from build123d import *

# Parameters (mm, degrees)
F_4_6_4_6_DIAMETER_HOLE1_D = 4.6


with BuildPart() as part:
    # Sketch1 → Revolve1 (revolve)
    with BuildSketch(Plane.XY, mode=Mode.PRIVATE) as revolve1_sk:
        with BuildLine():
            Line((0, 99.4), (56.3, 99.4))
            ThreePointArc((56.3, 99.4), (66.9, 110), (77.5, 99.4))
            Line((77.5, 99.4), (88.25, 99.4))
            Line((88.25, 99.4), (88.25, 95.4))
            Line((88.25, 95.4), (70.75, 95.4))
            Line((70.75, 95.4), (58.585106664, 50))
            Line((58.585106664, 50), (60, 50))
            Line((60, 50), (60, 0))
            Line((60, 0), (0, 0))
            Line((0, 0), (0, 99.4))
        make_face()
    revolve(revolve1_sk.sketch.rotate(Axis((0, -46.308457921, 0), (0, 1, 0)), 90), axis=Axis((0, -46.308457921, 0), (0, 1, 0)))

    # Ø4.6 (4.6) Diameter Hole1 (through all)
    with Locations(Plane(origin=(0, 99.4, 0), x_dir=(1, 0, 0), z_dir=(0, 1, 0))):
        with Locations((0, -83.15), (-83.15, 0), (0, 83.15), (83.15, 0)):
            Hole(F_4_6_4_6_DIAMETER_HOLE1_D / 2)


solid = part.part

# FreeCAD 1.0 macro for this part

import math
import FreeCAD as App
import Part
import Sketcher

V = App.Vector
Q = App.Units.Quantity

doc = App.newDocument("Part")
body = doc.addObject("PartDesign::Body", "Body")

# Sketch on XY plane
sketch1 = body.newObject("Sketcher::SketchObject", "Sketch")
sketch1.AttachmentSupport = (doc.getObject("XY_Plane"), [""])
sketch1.MapMode = "FlatFace"
sketch1.addGeometry(Part.LineSegment(V(56.3, 99.4, 0), V(0, 99.4, 0)), False)
sketch1.addGeometry(Part.LineSegment(V(0, 99.4, 0), V(0, 0, 0)), False)
sketch1.addGeometry(Part.LineSegment(V(0, 0, 0), V(60, 0, 0)), False)
sketch1.addGeometry(Part.LineSegment(V(60, 0, 0), V(60, 50, 0)), False)
sketch1.addGeometry(Part.LineSegment(V(60, 50, 0), V(58.6, 50, 0)), False)
sketch1.addGeometry(Part.LineSegment(V(58.6, 50, 0), V(70.8, 95.4, 0)), False)
sketch1.addGeometry(Part.LineSegment(V(70.8, 95.4, 0), V(88.2, 95.4, 0)), False)
sketch1.addGeometry(Part.LineSegment(V(88.2, 95.4, 0), V(88.2, 99.4, 0)), False)
sketch1.addGeometry(Part.LineSegment(V(88.2, 99.4, 0), V(77.5, 99.4, 0)), False)
sketch1.addGeometry(Part.ArcOfCircle(Part.Circle(V(66.9, 99.4, 0), V(0, 0, 1), 10.6), math.radians(0), math.radians(180)), False)
sketch1.addConstraint(Sketcher.Constraint("Coincident", 0, 2, 1, 1))
sketch1.addConstraint(Sketcher.Constraint("Coincident", 1, 2, 2, 1))
sketch1.addConstraint(Sketcher.Constraint("Coincident", 2, 2, 3, 1))
sketch1.addConstraint(Sketcher.Constraint("Coincident", 3, 2, 4, 1))
sketch1.addConstraint(Sketcher.Constraint("Coincident", 4, 2, 5, 1))
sketch1.addConstraint(Sketcher.Constraint("Coincident", 5, 2, 6, 1))
sketch1.addConstraint(Sketcher.Constraint("Coincident", 6, 2, 7, 1))
sketch1.addConstraint(Sketcher.Constraint("Coincident", 7, 2, 8, 1))
sketch1.addConstraint(Sketcher.Constraint("Coincident", 8, 2, 9, 1))
sketch1.addConstraint(Sketcher.Constraint("Coincident", 9, 2, 0, 1))
sketch1.addConstraint(Sketcher.Constraint("Horizontal", 0))
sketch1.addConstraint(Sketcher.Constraint("Vertical", 1))
sketch1.addConstraint(Sketcher.Constraint("Horizontal", 2))
sketch1.addConstraint(Sketcher.Constraint("Vertical", 3))
sketch1.addConstraint(Sketcher.Constraint("Horizontal", 4))
sketch1.addConstraint(Sketcher.Constraint("Horizontal", 6))
sketch1.addConstraint(Sketcher.Constraint("Vertical", 7))
sketch1.addConstraint(Sketcher.Constraint("Horizontal", 8))
sketch1.addConstraint(Sketcher.Constraint("Coincident", 1, 2, -1, 1))
sketch1.addConstraint(Sketcher.Constraint("Horizontal", 9, 3, 0, 2))
sketch1.addConstraint(Sketcher.Constraint("Horizontal", 0, 2, 7, 2))
sketch1.addConstraint(Sketcher.Constraint("Radius", 9, 10.6))
sketch1.addConstraint(Sketcher.Constraint("DistanceX", 2, 1, 2, 2, 60.0))
sketch1.addConstraint(Sketcher.Constraint("DistanceY", 3, 1, 3, 2, 50.0))
sketch1.addConstraint(Sketcher.Constraint("DistanceY", 7, 1, 7, 2, 4.0))
sketch1.addConstraint(Sketcher.Constraint("Angle", 5, Q("75 deg")))
sketch1.addConstraint(Sketcher.Constraint("DistanceX", 0, 2, 0, 1, 56.3))
sketch1.addConstraint(Sketcher.Constraint("DistanceX", 6, 1, 6, 2, 17.5))
sketch1.addConstraint(Sketcher.Constraint("DistanceY", 1, 2, 1, 1, 99.4))
sketch1.addConstraint(Sketcher.Constraint("DistanceX", 8, 2, 8, 1, 10.75))
revolution = body.newObject("PartDesign::Revolution", "Revolution")
revolution.Profile = sketch1
revolution.ReferenceAxis = (sketch1, ["V_Axis"])
revolution.Angle = 360

# Sketch on XZ plane
sketch2 = body.newObject("Sketcher::SketchObject", "Sketch001")
sketch2.AttachmentSupport = (doc.getObject("XZ_Plane"), [""])
sketch2.MapMode = "FlatFace"
sketch2.AttachmentOffset = App.Placement(V(0, 0, -99.4), App.Rotation())
sketch2.addGeometry(Part.Circle(V(0, 83.2, 0), V(0, 0, 1), 2.3), False)
sketch2.addGeometry(Part.Circle(V(-83.2, 0, 0), V(0, 0, 1), 2.3), False)
sketch2.addGeometry(Part.Circle(V(0, -83.2, 0), V(0, 0, 1), 2.3), False)
sketch2.addGeometry(Part.Circle(V(83.2, 0, 0), V(0, 0, 1), 2.3), False)
sketch2.addConstraint(Sketcher.Constraint("Equal", 0, 1))
sketch2.addConstraint(Sketcher.Constraint("Equal", 1, 2))
sketch2.addConstraint(Sketcher.Constraint("Equal", 2, 3))
sketch2.addConstraint(Sketcher.Constraint("Symmetric", 0, 3, 2, 3, -1, 1))
sketch2.addConstraint(Sketcher.Constraint("Symmetric", 1, 3, 3, 3, -1, 1))
sketch2.addConstraint(Sketcher.Constraint("PointOnObject", 0, 3, -2))
sketch2.addConstraint(Sketcher.Constraint("PointOnObject", 1, 3, -1))
sketch2.addConstraint(Sketcher.Constraint("Diameter", 0, 4.6))
sketch2.addConstraint(Sketcher.Constraint("DistanceY", 2, 3, 0, 3, 166.3))
sketch2.addConstraint(Sketcher.Constraint("DistanceX", 1, 3, 3, 3, 166.3))
doc.recompute()
hole = body.newObject("PartDesign::Hole", "Hole")
hole.Profile = sketch2
hole.ThreadType = "None"
hole.Diameter = 4.6
hole.DepthType = "ThroughAll"
hole.Reversed = True

doc.recompute()
